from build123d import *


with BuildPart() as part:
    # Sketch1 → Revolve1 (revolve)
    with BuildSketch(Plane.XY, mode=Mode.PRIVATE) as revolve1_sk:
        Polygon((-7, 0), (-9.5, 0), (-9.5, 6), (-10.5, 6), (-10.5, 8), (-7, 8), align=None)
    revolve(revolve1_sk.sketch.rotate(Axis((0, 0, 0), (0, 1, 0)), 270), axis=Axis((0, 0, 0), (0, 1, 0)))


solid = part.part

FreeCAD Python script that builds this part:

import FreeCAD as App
import Part
import Sketcher
from FreeCAD import Vector
Q = App.Units.Quantity


def add_polygon(sketch, points):
    """Adds a closed chain of lines whose ends are joined by coincident constraints."""
    first, n = sketch.GeometryCount, len(points)
    for a, b in zip(points, points[1:] + points[:1]):
        sketch.addGeometry(Part.LineSegment(App.Vector(*a, 0), App.Vector(*b, 0)), False)
    for i in range(n):
        sketch.addConstraint(Sketcher.Constraint("Coincident", first + i, 2, first + (i + 1) % n, 1))

doc = App.newDocument("Part")
body = doc.addObject("PartDesign::Body", "Body")

# Sketch on XY plane
sketch1 = body.newObject("Sketcher::SketchObject", "Sketch")
sketch1.AttachmentSupport = (doc.getObject("XY_Plane"), [""])
sketch1.MapMode = "FlatFace"
add_polygon(sketch1, [(-9.5, 0), (-7, 0), (-7, 8), (-10.5, 8), (-10.5, 6), (-9.5, 6)])  # lines 0-5
sketch1.addConstraint([
    Sketcher.Constraint("Horizontal", 0),
    Sketcher.Constraint("Vertical", 1),
    Sketcher.Constraint("Horizontal", 2),
    Sketcher.Constraint("Vertical", 3),
    Sketcher.Constraint("Horizontal", 4),
    Sketcher.Constraint("Vertical", 5),
    Sketcher.Constraint("PointOnObject", 0, 2, -1),
    Sketcher.Constraint("DistanceX", 4, 1, 4, 2, Q("1 mm")),
    Sketcher.Constraint("DistanceY", 1, 1, 1, 2, Q("8 mm")),
    Sketcher.Constraint("DistanceY", 3, 2, 3, 1, Q("2 mm")),
    Sketcher.Constraint("DistanceX", 0, 1, 0, 2, Q("2.5 mm")),
    Sketcher.Constraint("DistanceX", 0, 2, -1, 1, Q("7 mm")),
])
revolution = body.newObject("PartDesign::Revolution", "Revolution")
revolution.Profile = sketch1
revolution.ReferenceAxis = (sketch1, ["V_Axis"])
revolution.Angle = 360

doc.recompute()
